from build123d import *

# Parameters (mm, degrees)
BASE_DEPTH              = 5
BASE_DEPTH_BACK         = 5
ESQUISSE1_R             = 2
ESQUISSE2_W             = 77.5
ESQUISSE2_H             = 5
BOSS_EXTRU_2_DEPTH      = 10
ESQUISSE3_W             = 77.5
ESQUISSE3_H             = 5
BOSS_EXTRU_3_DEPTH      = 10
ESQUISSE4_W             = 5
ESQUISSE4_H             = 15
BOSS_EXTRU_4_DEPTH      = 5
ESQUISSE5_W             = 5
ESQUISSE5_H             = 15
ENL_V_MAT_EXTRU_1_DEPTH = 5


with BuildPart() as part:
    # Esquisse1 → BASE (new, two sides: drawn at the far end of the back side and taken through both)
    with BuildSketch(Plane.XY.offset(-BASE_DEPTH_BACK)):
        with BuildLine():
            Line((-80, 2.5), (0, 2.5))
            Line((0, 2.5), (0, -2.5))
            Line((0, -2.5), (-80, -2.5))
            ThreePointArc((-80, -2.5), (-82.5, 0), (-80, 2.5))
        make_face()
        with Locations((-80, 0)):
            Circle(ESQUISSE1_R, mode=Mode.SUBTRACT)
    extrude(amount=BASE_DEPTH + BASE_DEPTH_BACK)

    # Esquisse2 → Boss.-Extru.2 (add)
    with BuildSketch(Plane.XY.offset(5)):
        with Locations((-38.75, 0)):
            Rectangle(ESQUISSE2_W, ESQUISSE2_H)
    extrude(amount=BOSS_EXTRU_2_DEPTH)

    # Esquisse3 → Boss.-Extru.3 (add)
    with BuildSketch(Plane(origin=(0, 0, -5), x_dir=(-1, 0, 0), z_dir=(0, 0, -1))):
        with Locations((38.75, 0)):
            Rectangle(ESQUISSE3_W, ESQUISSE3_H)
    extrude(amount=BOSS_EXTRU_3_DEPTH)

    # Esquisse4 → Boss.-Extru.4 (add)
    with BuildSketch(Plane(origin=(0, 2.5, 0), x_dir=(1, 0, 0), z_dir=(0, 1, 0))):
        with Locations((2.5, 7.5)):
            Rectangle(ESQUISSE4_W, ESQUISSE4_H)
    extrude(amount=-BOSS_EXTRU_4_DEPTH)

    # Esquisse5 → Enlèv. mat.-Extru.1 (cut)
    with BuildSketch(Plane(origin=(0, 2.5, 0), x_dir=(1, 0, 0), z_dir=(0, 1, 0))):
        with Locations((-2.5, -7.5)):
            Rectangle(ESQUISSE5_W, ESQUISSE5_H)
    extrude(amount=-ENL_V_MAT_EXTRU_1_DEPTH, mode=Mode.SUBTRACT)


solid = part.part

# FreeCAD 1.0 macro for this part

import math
import FreeCAD as App
import Part
import Sketcher
from FreeCAD import Vector

doc = App.newDocument("Part")
body = doc.addObject("PartDesign::Body", "Body")

# Sketch on XY plane
sketch1 = body.newObject("Sketcher::SketchObject", "Sketch")
sketch1.AttachmentSupport = (doc.getObject("XY_Plane"), [""])
sketch1.MapMode = "FlatFace"
sketch1.addGeometry(Part.LineSegment(Vector(0, 2.5, 0), Vector(-80, 2.5, 0)), False)
sketch1.addGeometry(Part.ArcOfCircle(Part.Circle(Vector(-80, 0, 0), Vector(0, 0, 1), 2.5), math.radians(90), math.radians(270)), False)
sketch1.addGeometry(Part.LineSegment(Vector(-80, -2.5, 0), Vector(0, -2.5, 0)), False)
sketch1.addGeometry(Part.LineSegment(Vector(0, -2.5, 0), Vector(0, 2.5, 0)), False)
sketch1.addGeometry(Part.Circle(Vector(-80, 0, 0), Vector(0, 0, 1), 2), False)
sketch1.addConstraint(Sketcher.Constraint("Tangent", 0, 2, 1, 1))
sketch1.addConstraint(Sketcher.Constraint("Tangent", 1, 2, 2, 1))
sketch1.addConstraint(Sketcher.Constraint("Coincident", 2, 2, 3, 1))
sketch1.addConstraint(Sketcher.Constraint("Coincident", 3, 2, 0, 1))
sketch1.addConstraint(Sketcher.Constraint("Horizontal", 0))
sketch1.addConstraint(Sketcher.Constraint("Horizontal", 2))
sketch1.addConstraint(Sketcher.Constraint("Vertical", 3))
sketch1.addConstraint(Sketcher.Constraint("Coincident", 4, 3, 1, 3))
sketch1.addConstraint(Sketcher.Constraint("Symmetric", 2, 2, 3, 2, -1, 1))
sketch1.addConstraint(Sketcher.Constraint("Diameter", 4, 4.0))
sketch1.addConstraint(Sketcher.Constraint("Radius", 1, 2.5))
sketch1.addConstraint(Sketcher.Constraint("DistanceX", 0, 2, 0, 1, 80.0))
pad1 = body.newObject("PartDesign::Pad", "Pad")
pad1.Profile = sketch1
pad1.Type = "TwoLengths"
pad1.Length = 5
pad1.Length2 = 5

# Sketch on XY plane
sketch2 = body.newObject("Sketcher::SketchObject", "Sketch001")
sketch2.AttachmentSupport = (doc.getObject("XY_Plane"), [""])
sketch2.MapMode = "FlatFace"
sketch2.AttachmentOffset = App.Placement(Vector(0, 0, 5), App.Rotation())
sketch2.addGeometry(Part.LineSegment(Vector(-77.5, 2.5, 0), Vector(-77.5, -2.5, 0)), False)
sketch2.addGeometry(Part.LineSegment(Vector(-77.5, -2.5, 0), Vector(0, -2.5, 0)), False)
sketch2.addGeometry(Part.LineSegment(Vector(0, -2.5, 0), Vector(0, 2.5, 0)), False)
sketch2.addGeometry(Part.LineSegment(Vector(0, 2.5, 0), Vector(-77.5, 2.5, 0)), False)
sketch2.addConstraint(Sketcher.Constraint("Coincident", 0, 2, 1, 1))
sketch2.addConstraint(Sketcher.Constraint("Coincident", 1, 2, 2, 1))
sketch2.addConstraint(Sketcher.Constraint("Coincident", 2, 2, 3, 1))
sketch2.addConstraint(Sketcher.Constraint("Coincident", 3, 2, 0, 1))
sketch2.addConstraint(Sketcher.Constraint("Vertical", 0))
sketch2.addConstraint(Sketcher.Constraint("Horizontal", 1))
sketch2.addConstraint(Sketcher.Constraint("Vertical", 2))
sketch2.addConstraint(Sketcher.Constraint("Horizontal", 3))
sketch2.addConstraint(Sketcher.Constraint("Symmetric", 1, 2, 2, 2, -1, 1))
sketch2.addConstraint(Sketcher.Constraint("DistanceY", 0, 2, 0, 1, 5.0))
sketch2.addConstraint(Sketcher.Constraint("DistanceX", 1, 1, 1, 2, 77.5))
pad2 = body.newObject("PartDesign::Pad", "Pad001")
pad2.Profile = sketch2
pad2.Length = 10

# Sketch on XY plane
sketch3 = body.newObject("Sketcher::SketchObject", "Sketch002")
sketch3.AttachmentSupport = (doc.getObject("XY_Plane"), [""])
sketch3.MapMode = "FlatFace"
sketch3.AttachmentOffset = App.Placement(Vector(0, 0, -5), App.Rotation())
sketch3.addGeometry(Part.LineSegment(Vector(0, 2.5, 0), Vector(0, -2.5, 0)), False)
sketch3.addGeometry(Part.LineSegment(Vector(0, -2.5, 0), Vector(-77.5, -2.5, 0)), False)
sketch3.addGeometry(Part.LineSegment(Vector(-77.5, -2.5, 0), Vector(-77.5, 2.5, 0)), False)
sketch3.addGeometry(Part.LineSegment(Vector(-77.5, 2.5, 0), Vector(0, 2.5, 0)), False)
sketch3.addConstraint(Sketcher.Constraint("Coincident", 0, 2, 1, 1))
sketch3.addConstraint(Sketcher.Constraint("Coincident", 1, 2, 2, 1))
sketch3.addConstraint(Sketcher.Constraint("Coincident", 2, 2, 3, 1))
sketch3.addConstraint(Sketcher.Constraint("Coincident", 3, 2, 0, 1))
sketch3.addConstraint(Sketcher.Constraint("Vertical", 0))
sketch3.addConstraint(Sketcher.Constraint("Horizontal", 1))
sketch3.addConstraint(Sketcher.Constraint("Vertical", 2))
sketch3.addConstraint(Sketcher.Constraint("Horizontal", 3))
sketch3.addConstraint(Sketcher.Constraint("Symmetric", 0, 2, 3, 2, -1, 1))
sketch3.addConstraint(Sketcher.Constraint("DistanceY", 0, 2, 0, 1, 5.0))
sketch3.addConstraint(Sketcher.Constraint("DistanceX", 1, 2, 1, 1, 77.5))
pad3 = body.newObject("PartDesign::Pad", "Pad002")
pad3.Profile = sketch3
pad3.Length = 10
pad3.Reversed = True

# Sketch on XZ plane
sketch4 = body.newObject("Sketcher::SketchObject", "Sketch003")
sketch4.AttachmentSupport = (doc.getObject("XZ_Plane"), [""])
sketch4.MapMode = "FlatFace"
sketch4.AttachmentOffset = App.Placement(Vector(0, 0, -2.5), App.Rotation())
sketch4.addGeometry(Part.LineSegment(Vector(0, -15, 0), Vector(0, 0, 0)), False)
sketch4.addGeometry(Part.LineSegment(Vector(0, 0, 0), Vector(5, 0, 0)), False)
sketch4.addGeometry(Part.LineSegment(Vector(5, 0, 0), Vector(5, -15, 0)), False)
sketch4.addGeometry(Part.LineSegment(Vector(5, -15, 0), Vector(0, -15, 0)), False)
sketch4.addConstraint(Sketcher.Constraint("Coincident", 0, 2, 1, 1))
sketch4.addConstraint(Sketcher.Constraint("Coincident", 1, 2, 2, 1))
sketch4.addConstraint(Sketcher.Constraint("Coincident", 2, 2, 3, 1))
sketch4.addConstraint(Sketcher.Constraint("Coincident", 3, 2, 0, 1))
sketch4.addConstraint(Sketcher.Constraint("Vertical", 0))
sketch4.addConstraint(Sketcher.Constraint("Horizontal", 1))
sketch4.addConstraint(Sketcher.Constraint("Vertical", 2))
sketch4.addConstraint(Sketcher.Constraint("Horizontal", 3))
sketch4.addConstraint(Sketcher.Constraint("Coincident", 0, 2, -1, 1))
sketch4.addConstraint(Sketcher.Constraint("DistanceX", 1, 1, 1, 2, 5.0))
sketch4.addConstraint(Sketcher.Constraint("DistanceY", 0, 1, 0, 2, 15.0))
pad4 = body.newObject("PartDesign::Pad", "Pad003")
pad4.Profile = sketch4
pad4.Length = 5

# Sketch on XZ plane
sketch5 = body.newObject("Sketcher::SketchObject", "Sketch004")
sketch5.AttachmentSupport = (doc.getObject("XZ_Plane"), [""])
sketch5.MapMode = "FlatFace"
sketch5.AttachmentOffset = App.Placement(Vector(0, 0, -2.5), App.Rotation())
sketch5.addGeometry(Part.LineSegment(Vector(-5, 0, 0), Vector(-5, 15, 0)), False)
sketch5.addGeometry(Part.LineSegment(Vector(-5, 15, 0), Vector(0, 15, 0)), False)
sketch5.addGeometry(Part.LineSegment(Vector(0, 15, 0), Vector(0, 0, 0)), False)
sketch5.addGeometry(Part.LineSegment(Vector(0, 0, 0), Vector(-5, 0, 0)), False)
sketch5.addConstraint(Sketcher.Constraint("Coincident", 0, 2, 1, 1))
sketch5.addConstraint(Sketcher.Constraint("Coincident", 1, 2, 2, 1))
sketch5.addConstraint(Sketcher.Constraint("Coincident", 2, 2, 3, 1))
sketch5.addConstraint(Sketcher.Constraint("Coincident", 3, 2, 0, 1))
sketch5.addConstraint(Sketcher.Constraint("Vertical", 0))
sketch5.addConstraint(Sketcher.Constraint("Horizontal", 1))
sketch5.addConstraint(Sketcher.Constraint("Vertical", 2))
sketch5.addConstraint(Sketcher.Constraint("Horizontal", 3))
sketch5.addConstraint(Sketcher.Constraint("Coincident", 2, 2, -1, 1))
sketch5.addConstraint(Sketcher.Constraint("DistanceX", 1, 1, 1, 2, 5.0))
sketch5.addConstraint(Sketcher.Constraint("DistanceY", 0, 1, 0, 2, 15.0))
pocket1 = body.newObject("PartDesign::Pocket", "Pocket")
pocket1.Profile = sketch5
pocket1.Length = 5
pocket1.Reversed = True

doc.recompute()
